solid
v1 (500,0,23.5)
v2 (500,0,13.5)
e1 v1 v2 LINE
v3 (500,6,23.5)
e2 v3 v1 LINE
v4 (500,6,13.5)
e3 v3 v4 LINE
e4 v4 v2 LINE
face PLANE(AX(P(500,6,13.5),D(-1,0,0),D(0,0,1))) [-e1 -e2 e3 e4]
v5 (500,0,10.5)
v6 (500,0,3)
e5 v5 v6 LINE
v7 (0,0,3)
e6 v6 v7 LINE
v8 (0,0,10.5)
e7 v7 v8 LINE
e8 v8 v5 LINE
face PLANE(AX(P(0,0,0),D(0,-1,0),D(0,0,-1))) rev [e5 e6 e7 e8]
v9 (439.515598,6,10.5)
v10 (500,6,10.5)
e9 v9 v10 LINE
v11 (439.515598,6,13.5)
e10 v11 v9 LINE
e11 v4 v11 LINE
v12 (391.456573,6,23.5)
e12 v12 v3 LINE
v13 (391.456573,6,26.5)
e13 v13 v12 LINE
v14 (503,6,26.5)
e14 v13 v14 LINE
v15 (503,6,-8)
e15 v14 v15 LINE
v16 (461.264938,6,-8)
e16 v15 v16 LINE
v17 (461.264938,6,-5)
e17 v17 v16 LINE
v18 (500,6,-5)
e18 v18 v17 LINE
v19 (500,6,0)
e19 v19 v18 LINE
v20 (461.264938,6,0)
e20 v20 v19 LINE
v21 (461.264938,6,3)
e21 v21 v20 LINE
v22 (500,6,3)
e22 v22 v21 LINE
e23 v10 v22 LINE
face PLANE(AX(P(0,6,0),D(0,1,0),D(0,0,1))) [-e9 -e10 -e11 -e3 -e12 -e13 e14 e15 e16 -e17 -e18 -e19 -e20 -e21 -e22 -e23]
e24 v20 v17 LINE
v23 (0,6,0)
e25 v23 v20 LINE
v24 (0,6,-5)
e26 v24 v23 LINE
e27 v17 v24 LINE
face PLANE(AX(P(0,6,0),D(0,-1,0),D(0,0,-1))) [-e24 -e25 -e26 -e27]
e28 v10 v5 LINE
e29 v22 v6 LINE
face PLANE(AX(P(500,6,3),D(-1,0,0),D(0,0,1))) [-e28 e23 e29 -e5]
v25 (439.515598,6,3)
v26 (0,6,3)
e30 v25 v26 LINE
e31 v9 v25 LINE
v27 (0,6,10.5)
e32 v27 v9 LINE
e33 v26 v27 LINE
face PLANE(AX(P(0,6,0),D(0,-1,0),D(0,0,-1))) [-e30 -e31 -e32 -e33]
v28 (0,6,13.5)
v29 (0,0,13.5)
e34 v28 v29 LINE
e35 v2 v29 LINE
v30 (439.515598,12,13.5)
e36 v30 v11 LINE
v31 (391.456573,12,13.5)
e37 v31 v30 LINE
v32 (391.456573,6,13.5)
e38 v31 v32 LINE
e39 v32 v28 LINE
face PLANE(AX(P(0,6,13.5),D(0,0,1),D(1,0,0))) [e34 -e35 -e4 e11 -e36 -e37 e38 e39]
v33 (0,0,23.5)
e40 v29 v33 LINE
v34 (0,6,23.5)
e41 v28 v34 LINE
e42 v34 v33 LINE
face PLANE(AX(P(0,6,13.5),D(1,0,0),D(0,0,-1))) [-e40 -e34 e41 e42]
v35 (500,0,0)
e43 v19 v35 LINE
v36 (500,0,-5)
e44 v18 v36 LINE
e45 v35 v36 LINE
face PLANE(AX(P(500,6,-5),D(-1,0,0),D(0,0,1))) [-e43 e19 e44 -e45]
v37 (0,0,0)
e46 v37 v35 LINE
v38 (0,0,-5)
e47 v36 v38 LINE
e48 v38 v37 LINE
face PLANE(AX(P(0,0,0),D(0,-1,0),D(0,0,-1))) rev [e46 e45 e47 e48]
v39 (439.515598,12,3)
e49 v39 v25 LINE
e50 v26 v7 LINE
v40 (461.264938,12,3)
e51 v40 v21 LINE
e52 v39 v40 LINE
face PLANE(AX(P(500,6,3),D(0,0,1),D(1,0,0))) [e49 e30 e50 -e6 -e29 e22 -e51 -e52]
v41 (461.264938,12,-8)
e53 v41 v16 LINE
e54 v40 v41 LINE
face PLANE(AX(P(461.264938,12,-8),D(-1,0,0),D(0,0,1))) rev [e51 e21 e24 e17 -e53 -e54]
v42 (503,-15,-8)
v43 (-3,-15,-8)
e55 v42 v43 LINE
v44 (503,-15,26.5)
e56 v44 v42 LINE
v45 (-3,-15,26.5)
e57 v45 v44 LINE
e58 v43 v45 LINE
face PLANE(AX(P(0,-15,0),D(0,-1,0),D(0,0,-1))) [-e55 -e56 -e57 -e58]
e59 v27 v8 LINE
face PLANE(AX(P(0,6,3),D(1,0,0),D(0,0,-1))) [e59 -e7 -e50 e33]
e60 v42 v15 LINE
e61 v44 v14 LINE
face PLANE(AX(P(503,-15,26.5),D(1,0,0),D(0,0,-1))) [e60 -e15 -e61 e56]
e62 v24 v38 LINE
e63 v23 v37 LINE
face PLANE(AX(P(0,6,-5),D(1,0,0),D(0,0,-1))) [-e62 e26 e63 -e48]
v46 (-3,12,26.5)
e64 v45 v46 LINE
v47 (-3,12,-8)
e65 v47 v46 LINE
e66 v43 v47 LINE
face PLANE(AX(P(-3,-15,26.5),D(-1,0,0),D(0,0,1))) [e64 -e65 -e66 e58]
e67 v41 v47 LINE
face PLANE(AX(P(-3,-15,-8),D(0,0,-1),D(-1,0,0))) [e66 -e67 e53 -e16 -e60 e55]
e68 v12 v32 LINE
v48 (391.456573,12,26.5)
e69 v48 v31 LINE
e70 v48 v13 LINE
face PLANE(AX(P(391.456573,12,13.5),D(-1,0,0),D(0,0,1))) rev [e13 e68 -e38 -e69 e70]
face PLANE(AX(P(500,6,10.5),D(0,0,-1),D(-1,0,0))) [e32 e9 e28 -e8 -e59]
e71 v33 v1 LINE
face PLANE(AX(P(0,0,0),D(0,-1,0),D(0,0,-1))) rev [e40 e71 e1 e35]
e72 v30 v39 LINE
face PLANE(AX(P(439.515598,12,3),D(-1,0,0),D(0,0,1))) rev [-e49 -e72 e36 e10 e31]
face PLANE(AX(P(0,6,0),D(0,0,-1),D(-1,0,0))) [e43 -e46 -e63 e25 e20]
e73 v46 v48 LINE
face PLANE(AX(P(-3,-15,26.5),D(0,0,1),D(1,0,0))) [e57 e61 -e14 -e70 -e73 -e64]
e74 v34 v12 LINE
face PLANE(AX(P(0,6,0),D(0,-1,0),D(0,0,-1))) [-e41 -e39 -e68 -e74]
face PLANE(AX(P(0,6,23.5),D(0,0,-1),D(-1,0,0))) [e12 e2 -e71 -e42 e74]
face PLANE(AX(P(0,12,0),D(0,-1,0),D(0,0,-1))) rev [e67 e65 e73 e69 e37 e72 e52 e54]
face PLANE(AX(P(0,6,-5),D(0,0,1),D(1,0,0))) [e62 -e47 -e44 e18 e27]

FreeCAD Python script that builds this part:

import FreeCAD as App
import Part
import Sketcher
from FreeCAD import Vector
Q = App.Units.Quantity


def add_polygon(sketch, points):
    """Adds a closed chain of lines whose ends are joined by coincident constraints."""
    first, n = sketch.GeometryCount, len(points)
    for a, b in zip(points, points[1:] + points[:1]):
        sketch.addGeometry(Part.LineSegment(App.Vector(*a, 0), App.Vector(*b, 0)), False)
    for i in range(n):
        sketch.addConstraint(Sketcher.Constraint("Coincident", first + i, 2, first + (i + 1) % n, 1))

doc = App.newDocument("Part")
body = doc.addObject("PartDesign::Body", "Body")

# Sketch on XZ plane
sketch1 = body.newObject("Sketcher::SketchObject", "Sketch")
sketch1.AttachmentSupport = (doc.getObject("XZ_Plane"), [""])
sketch1.MapMode = "FlatFace"
add_polygon(sketch1, [(-3, -8), (-3, 26), (503, 26), (503, -8)])  # lines 0-3
sketch1.addConstraint(Sketcher.Constraint("Vertical", 0))
sketch1.addConstraint(Sketcher.Constraint("Horizontal", 1))
sketch1.addConstraint(Sketcher.Constraint("Vertical", 2))
sketch1.addConstraint(Sketcher.Constraint("Horizontal", 3))
sketch1.addConstraint(Sketcher.Constraint("DistanceX", 1, 1, 1, 2, Q("506 mm")))
sketch1.addConstraint(Sketcher.Constraint("DistanceY", 0, 1, 0, 2, Q("34.5 mm")))
sketch1.addConstraint(Sketcher.Constraint("DistanceX", 0, 2, -1, 1, Q("3 mm")))
sketch1.addConstraint(Sketcher.Constraint("DistanceY", 2, 2, -1, 1, Q("8 mm")))
pad1 = body.newObject("PartDesign::Pad", "Pad")
pad1.Profile = sketch1
pad1.Length = 15

# Sketch on XZ plane
sketch2 = body.newObject("Sketcher::SketchObject", "Sketch001")
sketch2.AttachmentSupport = (doc.getObject("XZ_Plane"), [""])
sketch2.MapMode = "FlatFace"
add_polygon(sketch2, [(-3, -8), (-3, 26), (503, 26), (503, -8)])  # lines 0-3
add_polygon(sketch2, [(500, 24), (0, 24), (0, 14), (500, 14)])  # lines 4-7
add_polygon(sketch2, [(500, 10), (0, 10), (0, 3), (500, 3)])  # lines 8-11
add_polygon(sketch2, [(500, 0), (0, 0), (0, -5), (500, -5)])  # lines 12-15
sketch2.addConstraint(Sketcher.Constraint("Vertical", 0))
sketch2.addConstraint(Sketcher.Constraint("Horizontal", 1))
sketch2.addConstraint(Sketcher.Constraint("Vertical", 2))
sketch2.addConstraint(Sketcher.Constraint("Horizontal", 3))
sketch2.addConstraint(Sketcher.Constraint("Horizontal", 4))
sketch2.addConstraint(Sketcher.Constraint("Vertical", 5))
sketch2.addConstraint(Sketcher.Constraint("Horizontal", 6))
sketch2.addConstraint(Sketcher.Constraint("Vertical", 7))
sketch2.addConstraint(Sketcher.Constraint("Horizontal", 8))
sketch2.addConstraint(Sketcher.Constraint("Vertical", 9))
sketch2.addConstraint(Sketcher.Constraint("Horizontal", 10))
sketch2.addConstraint(Sketcher.Constraint("Vertical", 11))
sketch2.addConstraint(Sketcher.Constraint("Horizontal", 12))
sketch2.addConstraint(Sketcher.Constraint("Vertical", 13))
sketch2.addConstraint(Sketcher.Constraint("Horizontal", 14))
sketch2.addConstraint(Sketcher.Constraint("Vertical", 15))
sketch2.addConstraint(Sketcher.Constraint("Coincident", 12, 2, -1, 1))
sketch2.addConstraint(Sketcher.Constraint("PointOnObject", 4, 2, -2))
sketch2.addConstraint(Sketcher.Constraint("PointOnObject", 8, 2, -2))
sketch2.addConstraint(Sketcher.Constraint("Vertical", 7, 2, 10, 2))
sketch2.addConstraint(Sketcher.Constraint("Vertical", 11, 2, 14, 2))
sketch2.addConstraint(Sketcher.Constraint("DistanceX", 1, 1, 1, 2, Q("506 mm")))
sketch2.addConstraint(Sketcher.Constraint("DistanceX", 4, 2, 4, 1, Q("500 mm")))
sketch2.addConstraint(Sketcher.Constraint("DistanceY", 5, 2, 5, 1, Q("10 mm")))
sketch2.addConstraint(Sketcher.Constraint("DistanceY", 13, 2, 13, 1, Q("5 mm")))
sketch2.addConstraint(Sketcher.Constraint("DistanceY", 0, 1, 0, 2, Q("34.5 mm")))
sketch2.addConstraint(Sketcher.Constraint("DistanceY", 9, 2, 9, 1, Q("7.5 mm")))
sketch2.addConstraint(Sketcher.Constraint("DistanceX", 0, 2, -1, 1, Q("3 mm")))
sketch2.addConstraint(Sketcher.Constraint("DistanceY", 2, 2, -1, 1, Q("8 mm")))
sketch2.addConstraint(Sketcher.Constraint("DistanceY", -1, 1, 9, 2, Q("3 mm")))
sketch2.addConstraint(Sketcher.Constraint("DistanceY", 4, 2, 0, 2, Q("3 mm")))
pad2 = body.newObject("PartDesign::Pad", "Pad001")
pad2.Profile = sketch2
pad2.Length = 6
pad2.Reversed = True

# Sketch on XZ plane
sketch3 = body.newObject("Sketcher::SketchObject", "Sketch002")
sketch3.AttachmentSupport = (doc.getObject("XZ_Plane"), [""])
sketch3.MapMode = "FlatFace"
sketch3.AttachmentOffset = App.Placement(Vector(0, 0, -6), App.Rotation())
add_polygon(sketch3, [(461, 3), (461, -8), (-3, -8), (-3, 26), (391, 26), (391, 14), (440, 14), (440, 3)])  # lines 0-7
sketch3.addConstraint(Sketcher.Constraint("Vertical", 0))
sketch3.addConstraint(Sketcher.Constraint("Horizontal", 1))
sketch3.addConstraint(Sketcher.Constraint("Vertical", 2))
sketch3.addConstraint(Sketcher.Constraint("Horizontal", 3))
sketch3.addConstraint(Sketcher.Constraint("Vertical", 4))
sketch3.addConstraint(Sketcher.Constraint("Horizontal", 5))
sketch3.addConstraint(Sketcher.Constraint("Vertical", 6))
sketch3.addConstraint(Sketcher.Constraint("Horizontal", 7))
sketch3.addConstraint(Sketcher.Constraint("DistanceY", 0, 2, 0, 1, Q("11 mm")))
sketch3.addConstraint(Sketcher.Constraint("DistanceY", 4, 2, 4, 1, Q("13 mm")))
sketch3.addConstraint(Sketcher.Constraint("DistanceY", 2, 1, 2, 2, Q("34.5 mm")))
sketch3.addConstraint(Sketcher.Constraint("DistanceY", 0, 2, -1, 1, Q("8 mm")))
sketch3.addConstraint(Sketcher.Constraint("DistanceX", 1, 2, -1, 1, Q("3 mm")))
sketch3.addConstraint(Sketcher.Constraint("DistanceX", 7, 1, 7, 2, Q("21.74934 mm")))
sketch3.addConstraint(Sketcher.Constraint("DistanceX", -1, 1, 5, 2, Q("439.515598 mm")))
sketch3.addConstraint(Sketcher.Constraint("DistanceX", 3, 1, 3, 2, Q("394.456573 mm")))
pad3 = body.newObject("PartDesign::Pad", "Pad002")
pad3.Profile = sketch3
pad3.Length = 6
pad3.Reversed = True

doc.recompute()
